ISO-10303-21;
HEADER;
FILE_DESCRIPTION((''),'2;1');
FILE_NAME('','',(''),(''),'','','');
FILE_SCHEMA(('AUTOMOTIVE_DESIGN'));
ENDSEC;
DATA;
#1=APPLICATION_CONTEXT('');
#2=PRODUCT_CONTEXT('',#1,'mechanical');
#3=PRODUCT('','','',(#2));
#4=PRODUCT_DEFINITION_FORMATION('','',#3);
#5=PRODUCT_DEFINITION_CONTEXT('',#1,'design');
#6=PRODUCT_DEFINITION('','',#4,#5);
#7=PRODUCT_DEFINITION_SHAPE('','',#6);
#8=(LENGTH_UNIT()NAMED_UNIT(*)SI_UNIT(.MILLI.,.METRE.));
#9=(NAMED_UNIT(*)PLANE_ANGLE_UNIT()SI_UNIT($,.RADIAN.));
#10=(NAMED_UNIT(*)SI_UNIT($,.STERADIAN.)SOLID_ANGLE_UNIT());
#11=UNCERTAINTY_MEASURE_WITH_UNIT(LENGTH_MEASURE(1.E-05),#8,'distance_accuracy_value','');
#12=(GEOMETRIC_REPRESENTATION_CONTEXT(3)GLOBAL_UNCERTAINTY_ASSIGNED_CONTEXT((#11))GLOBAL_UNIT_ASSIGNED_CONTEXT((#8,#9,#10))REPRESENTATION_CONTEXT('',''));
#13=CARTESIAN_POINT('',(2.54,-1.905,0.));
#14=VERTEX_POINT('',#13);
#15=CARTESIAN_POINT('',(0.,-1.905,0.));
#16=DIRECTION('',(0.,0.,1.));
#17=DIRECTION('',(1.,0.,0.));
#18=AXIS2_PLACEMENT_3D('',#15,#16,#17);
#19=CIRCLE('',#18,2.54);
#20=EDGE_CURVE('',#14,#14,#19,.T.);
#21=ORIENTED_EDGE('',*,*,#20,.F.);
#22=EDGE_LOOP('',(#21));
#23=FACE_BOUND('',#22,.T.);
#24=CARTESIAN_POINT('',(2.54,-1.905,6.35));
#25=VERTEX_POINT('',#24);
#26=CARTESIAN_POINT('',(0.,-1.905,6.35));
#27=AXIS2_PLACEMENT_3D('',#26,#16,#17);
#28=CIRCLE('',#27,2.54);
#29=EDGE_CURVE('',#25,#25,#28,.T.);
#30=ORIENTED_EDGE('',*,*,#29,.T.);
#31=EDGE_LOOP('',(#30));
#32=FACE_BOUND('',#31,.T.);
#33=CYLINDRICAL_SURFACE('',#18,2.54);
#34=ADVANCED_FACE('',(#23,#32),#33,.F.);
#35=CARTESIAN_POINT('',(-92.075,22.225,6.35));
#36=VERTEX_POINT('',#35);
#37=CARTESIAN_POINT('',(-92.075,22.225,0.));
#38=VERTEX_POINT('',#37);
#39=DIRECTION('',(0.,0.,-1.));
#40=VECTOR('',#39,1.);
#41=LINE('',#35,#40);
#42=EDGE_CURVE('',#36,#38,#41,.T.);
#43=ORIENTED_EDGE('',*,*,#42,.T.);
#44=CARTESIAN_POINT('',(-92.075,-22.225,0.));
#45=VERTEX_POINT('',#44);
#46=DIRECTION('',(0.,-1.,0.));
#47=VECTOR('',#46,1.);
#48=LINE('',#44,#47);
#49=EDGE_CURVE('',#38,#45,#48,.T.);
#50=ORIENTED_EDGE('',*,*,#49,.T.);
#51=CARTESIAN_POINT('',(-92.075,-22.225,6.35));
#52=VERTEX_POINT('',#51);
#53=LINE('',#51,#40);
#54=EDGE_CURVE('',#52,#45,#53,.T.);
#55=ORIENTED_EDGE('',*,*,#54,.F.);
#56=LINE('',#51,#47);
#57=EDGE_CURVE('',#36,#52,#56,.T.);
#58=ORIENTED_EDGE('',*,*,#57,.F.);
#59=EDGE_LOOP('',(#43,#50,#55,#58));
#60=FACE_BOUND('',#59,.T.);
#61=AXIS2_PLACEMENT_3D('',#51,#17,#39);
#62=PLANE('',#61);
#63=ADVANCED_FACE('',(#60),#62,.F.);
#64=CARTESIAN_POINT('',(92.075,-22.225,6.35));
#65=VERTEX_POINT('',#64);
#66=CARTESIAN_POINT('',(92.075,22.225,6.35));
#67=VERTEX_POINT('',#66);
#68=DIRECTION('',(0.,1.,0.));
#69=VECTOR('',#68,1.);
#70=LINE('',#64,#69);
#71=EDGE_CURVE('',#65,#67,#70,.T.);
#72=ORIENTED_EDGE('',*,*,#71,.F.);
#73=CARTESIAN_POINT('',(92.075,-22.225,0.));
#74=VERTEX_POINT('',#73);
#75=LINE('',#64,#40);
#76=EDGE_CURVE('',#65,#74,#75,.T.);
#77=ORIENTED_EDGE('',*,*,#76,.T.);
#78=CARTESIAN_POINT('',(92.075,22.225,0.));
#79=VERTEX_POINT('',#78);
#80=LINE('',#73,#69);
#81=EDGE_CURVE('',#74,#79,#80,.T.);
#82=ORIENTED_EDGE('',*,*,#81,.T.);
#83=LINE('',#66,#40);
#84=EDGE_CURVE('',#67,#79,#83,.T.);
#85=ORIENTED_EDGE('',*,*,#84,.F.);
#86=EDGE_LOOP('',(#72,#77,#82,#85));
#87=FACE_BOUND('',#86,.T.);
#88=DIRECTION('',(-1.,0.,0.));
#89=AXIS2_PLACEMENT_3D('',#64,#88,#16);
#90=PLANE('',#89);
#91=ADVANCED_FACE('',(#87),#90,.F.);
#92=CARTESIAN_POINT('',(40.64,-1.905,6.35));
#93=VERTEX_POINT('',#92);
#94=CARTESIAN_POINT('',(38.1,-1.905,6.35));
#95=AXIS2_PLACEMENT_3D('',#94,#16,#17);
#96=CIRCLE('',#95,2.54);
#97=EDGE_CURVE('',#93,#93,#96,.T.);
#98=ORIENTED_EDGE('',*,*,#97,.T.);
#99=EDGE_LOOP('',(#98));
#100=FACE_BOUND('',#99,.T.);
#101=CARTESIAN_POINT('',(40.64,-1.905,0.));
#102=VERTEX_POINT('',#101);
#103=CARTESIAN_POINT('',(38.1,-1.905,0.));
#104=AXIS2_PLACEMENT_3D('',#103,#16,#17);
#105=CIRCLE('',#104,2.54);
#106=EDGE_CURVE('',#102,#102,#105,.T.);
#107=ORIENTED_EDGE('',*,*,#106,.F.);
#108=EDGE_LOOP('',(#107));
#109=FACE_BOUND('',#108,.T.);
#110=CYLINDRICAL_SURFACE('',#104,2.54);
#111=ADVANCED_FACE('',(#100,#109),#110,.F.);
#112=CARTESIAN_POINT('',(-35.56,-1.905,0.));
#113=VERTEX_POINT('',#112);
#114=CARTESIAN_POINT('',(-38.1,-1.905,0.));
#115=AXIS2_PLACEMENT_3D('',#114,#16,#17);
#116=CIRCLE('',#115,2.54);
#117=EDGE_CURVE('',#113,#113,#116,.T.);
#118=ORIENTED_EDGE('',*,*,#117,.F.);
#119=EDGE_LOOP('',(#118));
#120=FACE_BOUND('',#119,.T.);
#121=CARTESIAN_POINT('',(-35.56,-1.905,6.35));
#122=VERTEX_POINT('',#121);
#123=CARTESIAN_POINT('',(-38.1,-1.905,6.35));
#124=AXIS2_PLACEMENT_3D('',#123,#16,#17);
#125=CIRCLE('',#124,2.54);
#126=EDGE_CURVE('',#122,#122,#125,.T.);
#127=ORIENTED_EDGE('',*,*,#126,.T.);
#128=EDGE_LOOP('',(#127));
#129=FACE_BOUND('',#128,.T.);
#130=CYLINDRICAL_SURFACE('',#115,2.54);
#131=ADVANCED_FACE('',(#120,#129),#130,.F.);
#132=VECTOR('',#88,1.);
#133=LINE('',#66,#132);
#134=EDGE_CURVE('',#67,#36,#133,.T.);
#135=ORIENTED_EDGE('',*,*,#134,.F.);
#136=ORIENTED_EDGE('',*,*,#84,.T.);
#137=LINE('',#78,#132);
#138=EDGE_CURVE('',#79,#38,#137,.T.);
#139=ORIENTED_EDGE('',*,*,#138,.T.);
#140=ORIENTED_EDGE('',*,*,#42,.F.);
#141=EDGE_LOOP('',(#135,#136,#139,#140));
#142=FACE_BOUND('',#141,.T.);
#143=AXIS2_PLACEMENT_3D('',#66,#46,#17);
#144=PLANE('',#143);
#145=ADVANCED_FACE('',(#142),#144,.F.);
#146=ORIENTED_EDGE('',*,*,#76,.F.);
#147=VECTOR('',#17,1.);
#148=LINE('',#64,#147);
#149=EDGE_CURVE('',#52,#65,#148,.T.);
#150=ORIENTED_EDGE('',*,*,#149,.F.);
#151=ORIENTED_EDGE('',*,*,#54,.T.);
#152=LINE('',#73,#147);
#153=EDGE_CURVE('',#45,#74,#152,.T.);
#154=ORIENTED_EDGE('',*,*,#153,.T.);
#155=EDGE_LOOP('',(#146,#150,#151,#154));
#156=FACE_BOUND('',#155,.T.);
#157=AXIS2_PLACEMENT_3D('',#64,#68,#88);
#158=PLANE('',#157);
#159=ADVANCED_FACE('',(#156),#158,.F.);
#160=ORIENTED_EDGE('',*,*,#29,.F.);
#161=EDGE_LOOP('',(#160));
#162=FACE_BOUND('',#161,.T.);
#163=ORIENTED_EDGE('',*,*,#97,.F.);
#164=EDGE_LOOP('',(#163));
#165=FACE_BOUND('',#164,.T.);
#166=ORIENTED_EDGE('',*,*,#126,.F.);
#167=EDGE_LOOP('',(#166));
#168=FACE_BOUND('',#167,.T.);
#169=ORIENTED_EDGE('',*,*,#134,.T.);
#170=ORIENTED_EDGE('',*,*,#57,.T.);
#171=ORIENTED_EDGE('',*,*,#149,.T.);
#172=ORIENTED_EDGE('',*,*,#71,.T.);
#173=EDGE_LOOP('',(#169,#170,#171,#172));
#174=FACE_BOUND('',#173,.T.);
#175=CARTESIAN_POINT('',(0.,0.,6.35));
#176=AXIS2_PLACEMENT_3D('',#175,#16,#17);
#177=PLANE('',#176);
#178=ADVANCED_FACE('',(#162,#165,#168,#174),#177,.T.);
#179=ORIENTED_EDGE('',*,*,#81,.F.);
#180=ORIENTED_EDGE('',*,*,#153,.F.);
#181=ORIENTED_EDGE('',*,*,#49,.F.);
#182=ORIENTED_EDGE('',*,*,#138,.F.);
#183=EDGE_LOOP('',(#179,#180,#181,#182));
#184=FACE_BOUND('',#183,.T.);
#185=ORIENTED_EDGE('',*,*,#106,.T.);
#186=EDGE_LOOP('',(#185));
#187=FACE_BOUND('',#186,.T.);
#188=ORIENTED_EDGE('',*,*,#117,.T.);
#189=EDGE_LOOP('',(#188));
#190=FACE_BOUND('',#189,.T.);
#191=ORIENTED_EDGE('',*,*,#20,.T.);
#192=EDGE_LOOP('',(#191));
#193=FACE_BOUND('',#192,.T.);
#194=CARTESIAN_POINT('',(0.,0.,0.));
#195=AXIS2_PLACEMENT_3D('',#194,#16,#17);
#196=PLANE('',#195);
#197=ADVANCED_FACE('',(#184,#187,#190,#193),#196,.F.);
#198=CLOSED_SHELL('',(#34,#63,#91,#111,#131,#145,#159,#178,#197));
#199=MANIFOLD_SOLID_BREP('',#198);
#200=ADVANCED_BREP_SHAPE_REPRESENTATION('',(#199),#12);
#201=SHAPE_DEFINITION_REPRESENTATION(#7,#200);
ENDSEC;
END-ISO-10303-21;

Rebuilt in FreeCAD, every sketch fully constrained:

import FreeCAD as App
import Part
import Sketcher

V = App.Vector
Q = App.Units.Quantity


def add_polygon(sketch, points):
    """Adds a closed chain of lines whose ends are joined by coincident constraints."""
    first, n = sketch.GeometryCount, len(points)
    for a, b in zip(points, points[1:] + points[:1]):
        sketch.addGeometry(Part.LineSegment(App.Vector(*a, 0), App.Vector(*b, 0)), False)
    for i in range(n):
        sketch.addConstraint(Sketcher.Constraint("Coincident", first + i, 2, first + (i + 1) % n, 1))

doc = App.newDocument("Part")
body = doc.addObject("PartDesign::Body", "Body")

# Sketch on XY plane
sketch1 = body.newObject("Sketcher::SketchObject", "Sketch")
sketch1.AttachmentSupport = (doc.getObject("XY_Plane"), [""])
sketch1.MapMode = "FlatFace"
add_polygon(sketch1, [(-92, 22), (-92, -22), (92, -22), (92, 22)])  # lines 0-3
sketch1.addConstraint([
    Sketcher.Constraint("Vertical", 0),
    Sketcher.Constraint("Horizontal", 1),
    Sketcher.Constraint("Vertical", 2),
    Sketcher.Constraint("Horizontal", 3),
    Sketcher.Constraint("Symmetric", 0, 2, 2, 2, -1, 1),
    Sketcher.Constraint("DistanceX", 1, 1, 1, 2, Q("7.25 in")),
    Sketcher.Constraint("DistanceY", 0, 2, 0, 1, Q("1.75 in")),
])
pad1 = body.newObject("PartDesign::Pad", "Pad")
pad1.Profile = sketch1
pad1.Length = Q("0.25 in")

# Sketch on XY plane
sketch2 = body.newObject("Sketcher::SketchObject", "Sketch001")
sketch2.AttachmentSupport = (doc.getObject("XY_Plane"), [""])
sketch2.MapMode = "FlatFace"
sketch2.AttachmentOffset = App.Placement(V(0, 0, 0.25 * 25.4), App.Rotation())
sketch2.addGeometry([
    Part.Circle(V(-38.1, -1.9, 0), V(0, 0, 1), 2.5),
    Part.Circle(V(0, -1.9, 0), V(0, 0, 1), 2.5),
    Part.Circle(V(38.1, -1.9, 0), V(0, 0, 1), 2.5),
], False)
sketch2.addConstraint([
    Sketcher.Constraint("Equal", 0, 1),
    Sketcher.Constraint("Equal", 1, 2),
    Sketcher.Constraint("Symmetric", 0, 3, 2, 3, -2),
    Sketcher.Constraint("PointOnObject", 1, 3, -2),
    Sketcher.Constraint("Horizontal", 0, 3, 1, 3),
    Sketcher.Constraint("Diameter", 0, Q("0.2 in")),
    Sketcher.Constraint("DistanceX", 0, 3, 2, 3, Q("3 in")),
    Sketcher.Constraint("DistanceY", 0, 3, -1, 1, Q("0.075 in")),
])
pocket1 = body.newObject("PartDesign::Pocket", "Pocket")
pocket1.Profile = sketch2
pocket1.Type = "ThroughAll"

doc.recompute()
